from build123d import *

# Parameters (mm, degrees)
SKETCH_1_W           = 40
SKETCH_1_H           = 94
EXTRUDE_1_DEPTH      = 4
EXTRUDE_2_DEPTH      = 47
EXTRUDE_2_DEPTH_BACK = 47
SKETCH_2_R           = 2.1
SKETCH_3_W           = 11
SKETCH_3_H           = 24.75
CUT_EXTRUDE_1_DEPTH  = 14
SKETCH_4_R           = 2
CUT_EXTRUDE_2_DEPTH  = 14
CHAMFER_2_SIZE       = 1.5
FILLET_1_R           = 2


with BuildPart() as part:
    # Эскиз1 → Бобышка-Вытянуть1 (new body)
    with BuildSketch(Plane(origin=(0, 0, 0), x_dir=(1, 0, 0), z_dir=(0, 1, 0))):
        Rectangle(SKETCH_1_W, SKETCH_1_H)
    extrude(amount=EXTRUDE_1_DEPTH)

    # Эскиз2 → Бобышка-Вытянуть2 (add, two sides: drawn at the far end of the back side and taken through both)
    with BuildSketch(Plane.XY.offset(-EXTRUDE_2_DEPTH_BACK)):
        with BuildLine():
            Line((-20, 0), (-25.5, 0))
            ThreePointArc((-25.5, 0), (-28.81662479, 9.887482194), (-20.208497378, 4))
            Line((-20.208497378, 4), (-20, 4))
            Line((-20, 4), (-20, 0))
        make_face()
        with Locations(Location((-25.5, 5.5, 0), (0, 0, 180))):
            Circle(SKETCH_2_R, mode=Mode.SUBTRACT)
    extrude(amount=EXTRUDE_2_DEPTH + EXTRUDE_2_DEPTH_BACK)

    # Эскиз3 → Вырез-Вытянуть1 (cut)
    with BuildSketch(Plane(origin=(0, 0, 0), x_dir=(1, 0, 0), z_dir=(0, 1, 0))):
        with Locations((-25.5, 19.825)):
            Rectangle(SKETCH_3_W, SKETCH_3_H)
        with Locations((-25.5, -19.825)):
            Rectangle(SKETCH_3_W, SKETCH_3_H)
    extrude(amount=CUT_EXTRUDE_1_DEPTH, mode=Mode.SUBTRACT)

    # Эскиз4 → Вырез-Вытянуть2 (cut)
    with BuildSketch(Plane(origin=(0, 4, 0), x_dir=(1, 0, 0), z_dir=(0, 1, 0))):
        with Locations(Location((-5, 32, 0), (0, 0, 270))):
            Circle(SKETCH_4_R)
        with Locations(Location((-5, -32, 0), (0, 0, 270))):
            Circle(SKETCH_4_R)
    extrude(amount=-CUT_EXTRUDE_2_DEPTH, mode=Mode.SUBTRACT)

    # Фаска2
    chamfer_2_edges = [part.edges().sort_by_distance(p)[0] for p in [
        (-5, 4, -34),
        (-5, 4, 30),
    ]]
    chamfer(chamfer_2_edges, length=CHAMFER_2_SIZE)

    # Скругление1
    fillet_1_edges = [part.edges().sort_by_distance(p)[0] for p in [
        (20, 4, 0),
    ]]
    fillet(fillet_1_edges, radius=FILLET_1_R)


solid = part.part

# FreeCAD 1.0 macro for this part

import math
import FreeCAD as App
import Part
import Sketcher
from FreeCAD import Vector
Q = App.Units.Quantity


def edges_at(feature, points):
    """Names of the edges that pass closest to the given points."""
    edges = feature.Shape.Edges
    near = lambda p: min(range(len(edges)), key=lambda i: edges[i].distToShape(Part.Vertex(*p))[0])
    return sorted({f"Edge{near(p) + 1}" for p in points})


def add_polygon(sketch, points):
    """Adds a closed chain of lines whose ends are joined by coincident constraints."""
    first, n = sketch.GeometryCount, len(points)
    for a, b in zip(points, points[1:] + points[:1]):
        sketch.addGeometry(Part.LineSegment(App.Vector(*a, 0), App.Vector(*b, 0)), False)
    for i in range(n):
        sketch.addConstraint(Sketcher.Constraint("Coincident", first + i, 2, first + (i + 1) % n, 1))

doc = App.newDocument("Part")
body = doc.addObject("PartDesign::Body", "Body")

# Sketch on XZ plane
sketch1 = doc.addObject("Sketcher::SketchObject", "Sketch")
body.addObject(sketch1)
sketch1.AttachmentSupport = (doc.XZ_Plane, [""])
sketch1.MapMode = "FlatFace"
add_polygon(sketch1, [(-20, -47), (-20, 47), (20, 47), (20, -47)])  # lines 0-3
sketch1.addConstraint([
    Sketcher.Constraint("Vertical", 0),
    Sketcher.Constraint("Horizontal", 1),
    Sketcher.Constraint("Vertical", 2),
    Sketcher.Constraint("Horizontal", 3),
    Sketcher.Constraint("Symmetric", 0, 2, 2, 2, -1, 1),
    Sketcher.Constraint("DistanceX", 1, 1, 1, 2, Q("40 mm")),
    Sketcher.Constraint("DistanceY", 0, 1, 0, 2, Q("94 mm")),
])
pad1 = doc.addObject("PartDesign::Pad", "Pad")
body.addObject(pad1)
pad1.Profile = sketch1
pad1.Length = 4
pad1.Reversed = True

# Sketch on XY plane
sketch2 = doc.addObject("Sketcher::SketchObject", "Sketch001")
body.addObject(sketch2)
sketch2.AttachmentSupport = (doc.XY_Plane, [""])
sketch2.MapMode = "FlatFace"
sketch2.addGeometry([
    Part.LineSegment(Vector(-25.5, 0, 0), Vector(-20, 0, 0)),  # 0
    Part.LineSegment(Vector(-20, 0, 0), Vector(-20, 4, 0)),  # 1
    Part.LineSegment(Vector(-20, 4, 0), Vector(-20.208497, 4, 0)),  # 2
    Part.ArcOfCircle(Part.Circle(Vector(-25.5, 5.5, 0), Vector(0, 0, 1), 5.5), math.radians(-15.82662), math.radians(270)),  # 3
    Part.Circle(Vector(-25.5, 5.5, 0), Vector(0, 0, 1), 2.1),  # 4
], False)
sketch2.addConstraint([
    Sketcher.Constraint("Coincident", 0, 2, 1, 1),
    Sketcher.Constraint("Coincident", 1, 2, 2, 1),
    Sketcher.Constraint("Coincident", 2, 2, 3, 1),
    Sketcher.Constraint("Tangent", 3, 2, 0, 1),
    Sketcher.Constraint("Horizontal", 0),
    Sketcher.Constraint("Vertical", 1),
    Sketcher.Constraint("Horizontal", 2),
    Sketcher.Constraint("Coincident", 4, 3, 3, 3),
    Sketcher.Constraint("PointOnObject", 0, 2, -1),
    Sketcher.Constraint("Diameter", 4, Q("4.2 mm")),
    Sketcher.Constraint("Radius", 3, Q("5.5 mm")),
    Sketcher.Constraint("DistanceY", 1, 1, 1, 2, Q("4 mm")),
    Sketcher.Constraint("DistanceX", 0, 1, 0, 2, Q("5.5 mm")),
    Sketcher.Constraint("DistanceX", 0, 2, -1, 1, Q("20 mm")),
])
pad2 = doc.addObject("PartDesign::Pad", "Pad001")
body.addObject(pad2)
pad2.Profile = sketch2
pad2.Type = "TwoLengths"
pad2.Length = 47
pad2.Length2 = 47

# Sketch on XZ plane
sketch3 = doc.addObject("Sketcher::SketchObject", "Sketch002")
body.addObject(sketch3)
sketch3.AttachmentSupport = (doc.XZ_Plane, [""])
sketch3.MapMode = "FlatFace"
add_polygon(sketch3, [(-31, -32.2), (-31, -7.45), (-20, -7.45), (-20, -32.2)])  # lines 0-3
add_polygon(sketch3, [(-31, 7.45), (-31, 32.2), (-20, 32.2), (-20, 7.45)])  # lines 4-7
sketch3.addConstraint([
    Sketcher.Constraint("Vertical", 0),
    Sketcher.Constraint("Horizontal", 1),
    Sketcher.Constraint("Vertical", 2),
    Sketcher.Constraint("Horizontal", 3),
    Sketcher.Constraint("Vertical", 4),
    Sketcher.Constraint("Horizontal", 5),
    Sketcher.Constraint("Vertical", 6),
    Sketcher.Constraint("Horizontal", 7),
    Sketcher.Constraint("Symmetric", 3, 2, 4, 2, -1),
    Sketcher.Constraint("Symmetric", 1, 2, 6, 2, -1),
    Sketcher.Constraint("DistanceX", 1, 1, 1, 2, Q("11 mm")),
    Sketcher.Constraint("DistanceX", 0, 2, -1, 1, Q("31 mm")),
    Sketcher.Constraint("DistanceY", 0, 1, 0, 2, Q("24.75 mm")),
    Sketcher.Constraint("DistanceY", 2, 2, -1, 1, Q("32.2 mm")),
])
pocket1 = doc.addObject("PartDesign::Pocket", "Pocket")
body.addObject(pocket1)
pocket1.Profile = sketch3
pocket1.Length = 14

# Sketch on XZ plane
sketch4 = doc.addObject("Sketcher::SketchObject", "Sketch003")
body.addObject(sketch4)
sketch4.AttachmentSupport = (doc.XZ_Plane, [""])
sketch4.MapMode = "FlatFace"
sketch4.AttachmentOffset = App.Placement(Vector(0, 0, -4), App.Rotation())
sketch4.addGeometry([
    Part.Circle(Vector(-5, -32, 0), Vector(0, 0, 1), 2),
    Part.Circle(Vector(-5, 32, 0), Vector(0, 0, 1), 2),
], False)
sketch4.addConstraint([
    Sketcher.Constraint("Equal", 0, 1),
    Sketcher.Constraint("Symmetric", 0, 3, 1, 3, -1),
    Sketcher.Constraint("Diameter", 0, Q("4 mm")),
    Sketcher.Constraint("DistanceX", 0, 3, -1, 1, Q("5 mm")),
    Sketcher.Constraint("DistanceY", 0, 3, -1, 1, Q("32 mm")),
])
pocket2 = doc.addObject("PartDesign::Pocket", "Pocket001")
body.addObject(pocket2)
pocket2.Profile = sketch4
pocket2.Length = 14
pocket2.Reversed = True
doc.recompute()

chamfer = doc.addObject("PartDesign::Chamfer", "Chamfer")
body.addObject(chamfer)
chamfer.Base = (pocket2, edges_at(pocket2, [(-5, 4, -34), (-5, 4, 30)]))
chamfer.Size = 1.5
doc.recompute()

fillet = doc.addObject("PartDesign::Fillet", "Fillet")
body.addObject(fillet)
fillet.Base = (chamfer, edges_at(chamfer, [(20, 4, 0)]))
fillet.Radius = 2

doc.recompute()
